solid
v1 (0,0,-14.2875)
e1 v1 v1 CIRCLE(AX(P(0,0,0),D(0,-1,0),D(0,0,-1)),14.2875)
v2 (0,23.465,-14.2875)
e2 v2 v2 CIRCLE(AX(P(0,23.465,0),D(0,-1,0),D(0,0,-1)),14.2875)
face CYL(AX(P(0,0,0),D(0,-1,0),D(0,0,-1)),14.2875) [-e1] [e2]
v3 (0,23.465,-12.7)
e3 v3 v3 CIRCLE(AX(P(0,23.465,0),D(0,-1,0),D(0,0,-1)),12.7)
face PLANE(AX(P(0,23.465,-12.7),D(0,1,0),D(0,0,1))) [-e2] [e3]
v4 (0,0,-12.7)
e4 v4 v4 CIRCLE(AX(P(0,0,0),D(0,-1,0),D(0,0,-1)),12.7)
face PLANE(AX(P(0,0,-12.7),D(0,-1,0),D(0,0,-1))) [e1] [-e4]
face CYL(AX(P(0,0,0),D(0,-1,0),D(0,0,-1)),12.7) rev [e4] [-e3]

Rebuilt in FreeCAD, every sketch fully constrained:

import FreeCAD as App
import Part
import Sketcher
from FreeCAD import Vector
Q = App.Units.Quantity


def add_polygon(sketch, points):
    """Adds a closed chain of lines whose ends are joined by coincident constraints."""
    first, n = sketch.GeometryCount, len(points)
    for a, b in zip(points, points[1:] + points[:1]):
        sketch.addGeometry(Part.LineSegment(App.Vector(*a, 0), App.Vector(*b, 0)), False)
    for i in range(n):
        sketch.addConstraint(Sketcher.Constraint("Coincident", first + i, 2, first + (i + 1) % n, 1))

doc = App.newDocument("Part")
body = doc.addObject("PartDesign::Body", "Body")

sketch1 = doc.addObject("Sketcher::SketchObject", "Sketch")
body.addObject(sketch1)
sketch1.AttachmentSupport = (doc.YZ_Plane, [""])
sketch1.MapMode = "FlatFace"
add_polygon(sketch1, [(23.465, -12.7), (0, -12.7), (0, -14.2875), (23.465, -14.2875)])
sketch1.addConstraint([
    Sketcher.Constraint("Horizontal", 0),
    Sketcher.Constraint("Vertical", 1),
    Sketcher.Constraint("Horizontal", 2),
    Sketcher.Constraint("Vertical", 3),
    Sketcher.Constraint("PointOnObject", 0, 2, -2),
    Sketcher.Constraint("DistanceY", 0, 2, -1, 1, Q("0.5 in")),
    Sketcher.Constraint("DistanceY", 1, 2, 1, 1, Q("0.0625 in")),
    Sketcher.Constraint("DistanceX", 0, 2, 0, 1, 23.465),
])
revolution = doc.addObject("PartDesign::Revolution", "Revolution")
body.addObject(revolution)
revolution.Profile = sketch1
revolution.ReferenceAxis = (sketch1, ["H_Axis"])
revolution.Angle = 360

doc.recompute()
